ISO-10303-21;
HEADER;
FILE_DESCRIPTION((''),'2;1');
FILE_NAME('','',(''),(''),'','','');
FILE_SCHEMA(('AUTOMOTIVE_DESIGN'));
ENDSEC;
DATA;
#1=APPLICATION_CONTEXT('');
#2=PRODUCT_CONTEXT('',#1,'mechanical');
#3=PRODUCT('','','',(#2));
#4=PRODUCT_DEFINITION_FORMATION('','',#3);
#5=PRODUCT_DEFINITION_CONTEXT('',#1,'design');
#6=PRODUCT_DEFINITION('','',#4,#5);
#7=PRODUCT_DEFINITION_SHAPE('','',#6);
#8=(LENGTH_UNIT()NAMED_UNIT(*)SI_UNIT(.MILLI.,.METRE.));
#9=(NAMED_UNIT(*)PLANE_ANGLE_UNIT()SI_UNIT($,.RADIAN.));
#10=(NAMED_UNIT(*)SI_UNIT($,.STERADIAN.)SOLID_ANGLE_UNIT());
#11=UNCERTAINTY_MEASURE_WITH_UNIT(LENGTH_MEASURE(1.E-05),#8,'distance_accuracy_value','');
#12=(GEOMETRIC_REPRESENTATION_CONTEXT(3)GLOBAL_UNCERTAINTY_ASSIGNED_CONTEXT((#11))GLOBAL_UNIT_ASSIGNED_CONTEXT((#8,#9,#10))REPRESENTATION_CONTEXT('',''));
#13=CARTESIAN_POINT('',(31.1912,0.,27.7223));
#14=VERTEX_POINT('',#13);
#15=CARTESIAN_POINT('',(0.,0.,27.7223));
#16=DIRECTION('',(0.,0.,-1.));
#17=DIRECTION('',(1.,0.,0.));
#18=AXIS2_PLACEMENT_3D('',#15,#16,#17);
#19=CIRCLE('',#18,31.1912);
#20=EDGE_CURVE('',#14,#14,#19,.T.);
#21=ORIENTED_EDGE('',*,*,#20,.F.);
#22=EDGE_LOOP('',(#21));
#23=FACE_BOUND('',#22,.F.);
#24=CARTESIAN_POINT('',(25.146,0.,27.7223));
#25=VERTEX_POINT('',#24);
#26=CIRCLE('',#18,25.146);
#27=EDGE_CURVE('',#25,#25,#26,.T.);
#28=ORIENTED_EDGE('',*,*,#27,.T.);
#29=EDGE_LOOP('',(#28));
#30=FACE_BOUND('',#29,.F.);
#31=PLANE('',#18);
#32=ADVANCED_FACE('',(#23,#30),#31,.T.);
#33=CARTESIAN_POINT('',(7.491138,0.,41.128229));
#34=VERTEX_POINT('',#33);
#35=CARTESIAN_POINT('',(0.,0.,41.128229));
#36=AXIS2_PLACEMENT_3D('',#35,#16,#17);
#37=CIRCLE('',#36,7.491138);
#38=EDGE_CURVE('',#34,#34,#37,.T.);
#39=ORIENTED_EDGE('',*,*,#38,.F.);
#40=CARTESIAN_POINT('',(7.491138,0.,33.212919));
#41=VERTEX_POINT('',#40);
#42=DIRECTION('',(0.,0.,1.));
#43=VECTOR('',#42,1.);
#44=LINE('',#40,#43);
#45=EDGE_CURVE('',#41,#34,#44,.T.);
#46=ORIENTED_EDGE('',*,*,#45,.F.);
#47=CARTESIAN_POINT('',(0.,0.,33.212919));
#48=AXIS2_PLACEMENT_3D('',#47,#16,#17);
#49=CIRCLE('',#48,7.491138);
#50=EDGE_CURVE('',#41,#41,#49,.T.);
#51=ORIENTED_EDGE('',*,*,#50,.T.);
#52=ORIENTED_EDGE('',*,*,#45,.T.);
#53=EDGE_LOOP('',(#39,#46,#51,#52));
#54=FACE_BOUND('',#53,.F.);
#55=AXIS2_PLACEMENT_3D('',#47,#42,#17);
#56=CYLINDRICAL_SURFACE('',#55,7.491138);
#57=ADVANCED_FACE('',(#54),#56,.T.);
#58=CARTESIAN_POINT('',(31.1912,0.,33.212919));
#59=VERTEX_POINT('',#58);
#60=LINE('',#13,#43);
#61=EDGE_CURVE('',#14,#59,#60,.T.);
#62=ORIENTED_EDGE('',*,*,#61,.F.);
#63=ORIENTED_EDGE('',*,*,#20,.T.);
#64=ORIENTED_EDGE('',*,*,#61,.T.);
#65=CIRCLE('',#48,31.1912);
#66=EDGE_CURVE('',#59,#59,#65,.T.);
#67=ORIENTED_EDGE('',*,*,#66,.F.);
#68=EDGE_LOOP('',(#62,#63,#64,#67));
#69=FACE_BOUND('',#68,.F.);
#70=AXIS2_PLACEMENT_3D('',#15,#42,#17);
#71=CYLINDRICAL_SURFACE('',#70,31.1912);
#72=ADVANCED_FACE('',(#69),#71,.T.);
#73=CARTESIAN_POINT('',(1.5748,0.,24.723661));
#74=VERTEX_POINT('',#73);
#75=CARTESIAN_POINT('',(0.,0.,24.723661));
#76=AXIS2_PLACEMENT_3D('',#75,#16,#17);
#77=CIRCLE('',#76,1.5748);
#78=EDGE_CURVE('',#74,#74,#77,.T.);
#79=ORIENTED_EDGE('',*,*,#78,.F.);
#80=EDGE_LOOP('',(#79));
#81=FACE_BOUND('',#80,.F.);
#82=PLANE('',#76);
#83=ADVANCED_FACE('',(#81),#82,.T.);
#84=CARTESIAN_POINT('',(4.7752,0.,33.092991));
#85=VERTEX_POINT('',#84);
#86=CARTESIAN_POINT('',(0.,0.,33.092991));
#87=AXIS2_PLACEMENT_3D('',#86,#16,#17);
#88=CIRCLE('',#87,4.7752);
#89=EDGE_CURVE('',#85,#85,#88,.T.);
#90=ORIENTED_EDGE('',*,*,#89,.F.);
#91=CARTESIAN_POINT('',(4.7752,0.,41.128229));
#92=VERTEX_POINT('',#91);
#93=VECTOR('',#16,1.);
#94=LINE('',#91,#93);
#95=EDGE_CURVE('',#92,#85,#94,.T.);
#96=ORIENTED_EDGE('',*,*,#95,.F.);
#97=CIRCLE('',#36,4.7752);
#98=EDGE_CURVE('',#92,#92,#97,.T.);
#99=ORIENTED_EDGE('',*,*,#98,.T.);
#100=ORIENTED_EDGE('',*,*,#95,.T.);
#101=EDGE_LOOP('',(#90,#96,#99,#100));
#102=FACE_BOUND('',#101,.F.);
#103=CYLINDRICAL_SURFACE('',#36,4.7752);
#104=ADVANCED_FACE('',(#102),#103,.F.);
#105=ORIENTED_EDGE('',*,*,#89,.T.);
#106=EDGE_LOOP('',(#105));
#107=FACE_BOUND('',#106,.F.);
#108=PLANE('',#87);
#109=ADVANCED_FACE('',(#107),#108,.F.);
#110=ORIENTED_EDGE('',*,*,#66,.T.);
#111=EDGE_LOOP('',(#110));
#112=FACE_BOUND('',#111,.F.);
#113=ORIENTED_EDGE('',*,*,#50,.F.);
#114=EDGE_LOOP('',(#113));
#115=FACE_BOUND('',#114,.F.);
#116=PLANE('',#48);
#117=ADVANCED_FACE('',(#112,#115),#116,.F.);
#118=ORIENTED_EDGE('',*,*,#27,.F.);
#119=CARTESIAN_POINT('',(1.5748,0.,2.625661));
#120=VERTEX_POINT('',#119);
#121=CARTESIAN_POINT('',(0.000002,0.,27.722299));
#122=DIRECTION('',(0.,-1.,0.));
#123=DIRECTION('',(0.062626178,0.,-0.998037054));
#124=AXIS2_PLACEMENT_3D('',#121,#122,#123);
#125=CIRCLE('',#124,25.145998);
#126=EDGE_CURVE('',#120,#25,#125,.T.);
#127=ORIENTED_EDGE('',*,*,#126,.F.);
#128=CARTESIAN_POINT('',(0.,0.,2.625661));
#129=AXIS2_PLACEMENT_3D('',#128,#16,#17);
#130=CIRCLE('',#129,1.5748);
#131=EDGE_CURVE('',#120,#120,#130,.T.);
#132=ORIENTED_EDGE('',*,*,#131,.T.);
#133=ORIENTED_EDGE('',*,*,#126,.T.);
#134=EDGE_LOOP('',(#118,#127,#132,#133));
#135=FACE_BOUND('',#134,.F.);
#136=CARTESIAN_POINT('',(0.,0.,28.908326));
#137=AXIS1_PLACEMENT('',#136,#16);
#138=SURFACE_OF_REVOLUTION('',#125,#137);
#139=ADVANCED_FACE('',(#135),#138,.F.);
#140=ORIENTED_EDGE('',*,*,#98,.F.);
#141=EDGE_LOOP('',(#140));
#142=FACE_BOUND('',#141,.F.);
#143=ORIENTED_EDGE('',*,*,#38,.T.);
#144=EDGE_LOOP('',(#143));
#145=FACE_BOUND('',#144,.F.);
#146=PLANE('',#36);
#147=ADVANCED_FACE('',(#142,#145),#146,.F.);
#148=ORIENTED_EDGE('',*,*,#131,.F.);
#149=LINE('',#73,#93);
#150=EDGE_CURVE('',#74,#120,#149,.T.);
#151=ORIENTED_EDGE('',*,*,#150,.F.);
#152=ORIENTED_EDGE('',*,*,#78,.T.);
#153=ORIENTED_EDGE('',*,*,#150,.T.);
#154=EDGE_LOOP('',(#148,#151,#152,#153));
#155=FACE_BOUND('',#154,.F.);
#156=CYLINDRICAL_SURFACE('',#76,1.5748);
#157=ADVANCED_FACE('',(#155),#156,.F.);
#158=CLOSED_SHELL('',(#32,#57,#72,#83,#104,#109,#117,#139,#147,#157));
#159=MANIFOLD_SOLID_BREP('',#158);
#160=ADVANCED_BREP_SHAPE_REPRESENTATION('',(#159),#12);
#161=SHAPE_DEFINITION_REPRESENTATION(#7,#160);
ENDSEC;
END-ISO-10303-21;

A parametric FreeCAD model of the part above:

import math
import FreeCAD as App
import Part
import Sketcher

V = App.Vector
Q = App.Units.Quantity

doc = App.newDocument("Part")
body = doc.addObject("PartDesign::Body", "Body")

sketch1 = body.newObject("Sketcher::SketchObject", "Sketch")
sketch1.AttachmentSupport = (doc.getObject("XZ_Plane"), [""])
sketch1.MapMode = "FlatFace"
sketch1.addGeometry([
    Part.LineSegment(V(1.5748, 24.723661, 0), V(1.5748, 2.625661, 0)),
    Part.ArcOfCircle(Part.Circle(V(0.000002, 27.722299, 0), V(0, 0, 1), 25.145998), math.radians(-86.409435), math.radians(0.000003)),
    Part.LineSegment(V(25.146, 27.7223, 0), V(31.1912, 27.7223, 0)),
    Part.LineSegment(V(31.1912, 27.7223, 0), V(31.1912, 33.212919, 0)),
    Part.LineSegment(V(31.1912, 33.212919, 0), V(7.491138, 33.212919, 0)),
    Part.LineSegment(V(7.491138, 33.212919, 0), V(7.491138, 41.128229, 0)),
    Part.LineSegment(V(7.491138, 41.128229, 0), V(4.7752, 41.128229, 0)),
    Part.LineSegment(V(4.7752, 41.128229, 0), V(4.7752, 33.092991, 0)),
    Part.LineSegment(V(4.7752, 33.092991, 0), V(0, 33.092991, 0)),
    Part.LineSegment(V(0, 33.092991, 0), V(0, 24.723661, 0)),
    Part.LineSegment(V(0, 24.723661, 0), V(1.5748, 24.723661, 0)),
], False)
sketch1.addConstraint([
    Sketcher.Constraint("Coincident", 0, 2, 1, 1),
    Sketcher.Constraint("Coincident", 1, 2, 2, 1),
    Sketcher.Constraint("Coincident", 2, 2, 3, 1),
    Sketcher.Constraint("Coincident", 3, 2, 4, 1),
    Sketcher.Constraint("Coincident", 4, 2, 5, 1),
    Sketcher.Constraint("Coincident", 5, 2, 6, 1),
    Sketcher.Constraint("Coincident", 6, 2, 7, 1),
    Sketcher.Constraint("Coincident", 7, 2, 8, 1),
    Sketcher.Constraint("Coincident", 8, 2, 9, 1),
    Sketcher.Constraint("Coincident", 9, 2, 10, 1),
    Sketcher.Constraint("Coincident", 10, 2, 0, 1),
    Sketcher.Constraint("Vertical", 0),
    Sketcher.Constraint("Horizontal", 2),
    Sketcher.Constraint("Vertical", 3),
    Sketcher.Constraint("Horizontal", 4),
    Sketcher.Constraint("Vertical", 5),
    Sketcher.Constraint("Horizontal", 6),
    Sketcher.Constraint("Vertical", 7),
    Sketcher.Constraint("Horizontal", 8),
    Sketcher.Constraint("Vertical", 9),
    Sketcher.Constraint("Horizontal", 10),
    Sketcher.Constraint("PointOnObject", 8, 2, -2),
    Sketcher.Constraint("Radius", 1, Q("0.9899999 in")),
    Sketcher.Constraint("DistanceY", 0, 2, 0, 1, Q("0.87 in")),
    Sketcher.Constraint("DistanceX", 2, 1, 2, 2, Q("0.238 in")),
    Sketcher.Constraint("DistanceX", 8, 2, 8, 1, Q("0.188 in")),
    Sketcher.Constraint("DistanceX", 10, 1, 10, 2, Q("0.062 in")),
    Sketcher.Constraint("DistanceX", -1, 1, 1, 2, Q("0.99 in")),
    Sketcher.Constraint("DistanceX", 4, 2, 4, 1, 23.700062),
    Sketcher.Constraint("DistanceY", 3, 1, 3, 2, 5.490619),
    Sketcher.Constraint("DistanceY", 5, 1, 5, 2, 7.91531),
    Sketcher.Constraint("DistanceY", 9, 2, 9, 1, 8.36933),
    Sketcher.Constraint("DistanceY", -1, 1, 1, 3, 27.722299),
    Sketcher.Constraint("DistanceY", -1, 1, 1, 2, 27.7223),
])
revolution = body.newObject("PartDesign::Revolution", "Revolution")
revolution.Profile = sketch1
revolution.ReferenceAxis = (sketch1, ["V_Axis"])
revolution.Angle = 360

doc.recompute()
